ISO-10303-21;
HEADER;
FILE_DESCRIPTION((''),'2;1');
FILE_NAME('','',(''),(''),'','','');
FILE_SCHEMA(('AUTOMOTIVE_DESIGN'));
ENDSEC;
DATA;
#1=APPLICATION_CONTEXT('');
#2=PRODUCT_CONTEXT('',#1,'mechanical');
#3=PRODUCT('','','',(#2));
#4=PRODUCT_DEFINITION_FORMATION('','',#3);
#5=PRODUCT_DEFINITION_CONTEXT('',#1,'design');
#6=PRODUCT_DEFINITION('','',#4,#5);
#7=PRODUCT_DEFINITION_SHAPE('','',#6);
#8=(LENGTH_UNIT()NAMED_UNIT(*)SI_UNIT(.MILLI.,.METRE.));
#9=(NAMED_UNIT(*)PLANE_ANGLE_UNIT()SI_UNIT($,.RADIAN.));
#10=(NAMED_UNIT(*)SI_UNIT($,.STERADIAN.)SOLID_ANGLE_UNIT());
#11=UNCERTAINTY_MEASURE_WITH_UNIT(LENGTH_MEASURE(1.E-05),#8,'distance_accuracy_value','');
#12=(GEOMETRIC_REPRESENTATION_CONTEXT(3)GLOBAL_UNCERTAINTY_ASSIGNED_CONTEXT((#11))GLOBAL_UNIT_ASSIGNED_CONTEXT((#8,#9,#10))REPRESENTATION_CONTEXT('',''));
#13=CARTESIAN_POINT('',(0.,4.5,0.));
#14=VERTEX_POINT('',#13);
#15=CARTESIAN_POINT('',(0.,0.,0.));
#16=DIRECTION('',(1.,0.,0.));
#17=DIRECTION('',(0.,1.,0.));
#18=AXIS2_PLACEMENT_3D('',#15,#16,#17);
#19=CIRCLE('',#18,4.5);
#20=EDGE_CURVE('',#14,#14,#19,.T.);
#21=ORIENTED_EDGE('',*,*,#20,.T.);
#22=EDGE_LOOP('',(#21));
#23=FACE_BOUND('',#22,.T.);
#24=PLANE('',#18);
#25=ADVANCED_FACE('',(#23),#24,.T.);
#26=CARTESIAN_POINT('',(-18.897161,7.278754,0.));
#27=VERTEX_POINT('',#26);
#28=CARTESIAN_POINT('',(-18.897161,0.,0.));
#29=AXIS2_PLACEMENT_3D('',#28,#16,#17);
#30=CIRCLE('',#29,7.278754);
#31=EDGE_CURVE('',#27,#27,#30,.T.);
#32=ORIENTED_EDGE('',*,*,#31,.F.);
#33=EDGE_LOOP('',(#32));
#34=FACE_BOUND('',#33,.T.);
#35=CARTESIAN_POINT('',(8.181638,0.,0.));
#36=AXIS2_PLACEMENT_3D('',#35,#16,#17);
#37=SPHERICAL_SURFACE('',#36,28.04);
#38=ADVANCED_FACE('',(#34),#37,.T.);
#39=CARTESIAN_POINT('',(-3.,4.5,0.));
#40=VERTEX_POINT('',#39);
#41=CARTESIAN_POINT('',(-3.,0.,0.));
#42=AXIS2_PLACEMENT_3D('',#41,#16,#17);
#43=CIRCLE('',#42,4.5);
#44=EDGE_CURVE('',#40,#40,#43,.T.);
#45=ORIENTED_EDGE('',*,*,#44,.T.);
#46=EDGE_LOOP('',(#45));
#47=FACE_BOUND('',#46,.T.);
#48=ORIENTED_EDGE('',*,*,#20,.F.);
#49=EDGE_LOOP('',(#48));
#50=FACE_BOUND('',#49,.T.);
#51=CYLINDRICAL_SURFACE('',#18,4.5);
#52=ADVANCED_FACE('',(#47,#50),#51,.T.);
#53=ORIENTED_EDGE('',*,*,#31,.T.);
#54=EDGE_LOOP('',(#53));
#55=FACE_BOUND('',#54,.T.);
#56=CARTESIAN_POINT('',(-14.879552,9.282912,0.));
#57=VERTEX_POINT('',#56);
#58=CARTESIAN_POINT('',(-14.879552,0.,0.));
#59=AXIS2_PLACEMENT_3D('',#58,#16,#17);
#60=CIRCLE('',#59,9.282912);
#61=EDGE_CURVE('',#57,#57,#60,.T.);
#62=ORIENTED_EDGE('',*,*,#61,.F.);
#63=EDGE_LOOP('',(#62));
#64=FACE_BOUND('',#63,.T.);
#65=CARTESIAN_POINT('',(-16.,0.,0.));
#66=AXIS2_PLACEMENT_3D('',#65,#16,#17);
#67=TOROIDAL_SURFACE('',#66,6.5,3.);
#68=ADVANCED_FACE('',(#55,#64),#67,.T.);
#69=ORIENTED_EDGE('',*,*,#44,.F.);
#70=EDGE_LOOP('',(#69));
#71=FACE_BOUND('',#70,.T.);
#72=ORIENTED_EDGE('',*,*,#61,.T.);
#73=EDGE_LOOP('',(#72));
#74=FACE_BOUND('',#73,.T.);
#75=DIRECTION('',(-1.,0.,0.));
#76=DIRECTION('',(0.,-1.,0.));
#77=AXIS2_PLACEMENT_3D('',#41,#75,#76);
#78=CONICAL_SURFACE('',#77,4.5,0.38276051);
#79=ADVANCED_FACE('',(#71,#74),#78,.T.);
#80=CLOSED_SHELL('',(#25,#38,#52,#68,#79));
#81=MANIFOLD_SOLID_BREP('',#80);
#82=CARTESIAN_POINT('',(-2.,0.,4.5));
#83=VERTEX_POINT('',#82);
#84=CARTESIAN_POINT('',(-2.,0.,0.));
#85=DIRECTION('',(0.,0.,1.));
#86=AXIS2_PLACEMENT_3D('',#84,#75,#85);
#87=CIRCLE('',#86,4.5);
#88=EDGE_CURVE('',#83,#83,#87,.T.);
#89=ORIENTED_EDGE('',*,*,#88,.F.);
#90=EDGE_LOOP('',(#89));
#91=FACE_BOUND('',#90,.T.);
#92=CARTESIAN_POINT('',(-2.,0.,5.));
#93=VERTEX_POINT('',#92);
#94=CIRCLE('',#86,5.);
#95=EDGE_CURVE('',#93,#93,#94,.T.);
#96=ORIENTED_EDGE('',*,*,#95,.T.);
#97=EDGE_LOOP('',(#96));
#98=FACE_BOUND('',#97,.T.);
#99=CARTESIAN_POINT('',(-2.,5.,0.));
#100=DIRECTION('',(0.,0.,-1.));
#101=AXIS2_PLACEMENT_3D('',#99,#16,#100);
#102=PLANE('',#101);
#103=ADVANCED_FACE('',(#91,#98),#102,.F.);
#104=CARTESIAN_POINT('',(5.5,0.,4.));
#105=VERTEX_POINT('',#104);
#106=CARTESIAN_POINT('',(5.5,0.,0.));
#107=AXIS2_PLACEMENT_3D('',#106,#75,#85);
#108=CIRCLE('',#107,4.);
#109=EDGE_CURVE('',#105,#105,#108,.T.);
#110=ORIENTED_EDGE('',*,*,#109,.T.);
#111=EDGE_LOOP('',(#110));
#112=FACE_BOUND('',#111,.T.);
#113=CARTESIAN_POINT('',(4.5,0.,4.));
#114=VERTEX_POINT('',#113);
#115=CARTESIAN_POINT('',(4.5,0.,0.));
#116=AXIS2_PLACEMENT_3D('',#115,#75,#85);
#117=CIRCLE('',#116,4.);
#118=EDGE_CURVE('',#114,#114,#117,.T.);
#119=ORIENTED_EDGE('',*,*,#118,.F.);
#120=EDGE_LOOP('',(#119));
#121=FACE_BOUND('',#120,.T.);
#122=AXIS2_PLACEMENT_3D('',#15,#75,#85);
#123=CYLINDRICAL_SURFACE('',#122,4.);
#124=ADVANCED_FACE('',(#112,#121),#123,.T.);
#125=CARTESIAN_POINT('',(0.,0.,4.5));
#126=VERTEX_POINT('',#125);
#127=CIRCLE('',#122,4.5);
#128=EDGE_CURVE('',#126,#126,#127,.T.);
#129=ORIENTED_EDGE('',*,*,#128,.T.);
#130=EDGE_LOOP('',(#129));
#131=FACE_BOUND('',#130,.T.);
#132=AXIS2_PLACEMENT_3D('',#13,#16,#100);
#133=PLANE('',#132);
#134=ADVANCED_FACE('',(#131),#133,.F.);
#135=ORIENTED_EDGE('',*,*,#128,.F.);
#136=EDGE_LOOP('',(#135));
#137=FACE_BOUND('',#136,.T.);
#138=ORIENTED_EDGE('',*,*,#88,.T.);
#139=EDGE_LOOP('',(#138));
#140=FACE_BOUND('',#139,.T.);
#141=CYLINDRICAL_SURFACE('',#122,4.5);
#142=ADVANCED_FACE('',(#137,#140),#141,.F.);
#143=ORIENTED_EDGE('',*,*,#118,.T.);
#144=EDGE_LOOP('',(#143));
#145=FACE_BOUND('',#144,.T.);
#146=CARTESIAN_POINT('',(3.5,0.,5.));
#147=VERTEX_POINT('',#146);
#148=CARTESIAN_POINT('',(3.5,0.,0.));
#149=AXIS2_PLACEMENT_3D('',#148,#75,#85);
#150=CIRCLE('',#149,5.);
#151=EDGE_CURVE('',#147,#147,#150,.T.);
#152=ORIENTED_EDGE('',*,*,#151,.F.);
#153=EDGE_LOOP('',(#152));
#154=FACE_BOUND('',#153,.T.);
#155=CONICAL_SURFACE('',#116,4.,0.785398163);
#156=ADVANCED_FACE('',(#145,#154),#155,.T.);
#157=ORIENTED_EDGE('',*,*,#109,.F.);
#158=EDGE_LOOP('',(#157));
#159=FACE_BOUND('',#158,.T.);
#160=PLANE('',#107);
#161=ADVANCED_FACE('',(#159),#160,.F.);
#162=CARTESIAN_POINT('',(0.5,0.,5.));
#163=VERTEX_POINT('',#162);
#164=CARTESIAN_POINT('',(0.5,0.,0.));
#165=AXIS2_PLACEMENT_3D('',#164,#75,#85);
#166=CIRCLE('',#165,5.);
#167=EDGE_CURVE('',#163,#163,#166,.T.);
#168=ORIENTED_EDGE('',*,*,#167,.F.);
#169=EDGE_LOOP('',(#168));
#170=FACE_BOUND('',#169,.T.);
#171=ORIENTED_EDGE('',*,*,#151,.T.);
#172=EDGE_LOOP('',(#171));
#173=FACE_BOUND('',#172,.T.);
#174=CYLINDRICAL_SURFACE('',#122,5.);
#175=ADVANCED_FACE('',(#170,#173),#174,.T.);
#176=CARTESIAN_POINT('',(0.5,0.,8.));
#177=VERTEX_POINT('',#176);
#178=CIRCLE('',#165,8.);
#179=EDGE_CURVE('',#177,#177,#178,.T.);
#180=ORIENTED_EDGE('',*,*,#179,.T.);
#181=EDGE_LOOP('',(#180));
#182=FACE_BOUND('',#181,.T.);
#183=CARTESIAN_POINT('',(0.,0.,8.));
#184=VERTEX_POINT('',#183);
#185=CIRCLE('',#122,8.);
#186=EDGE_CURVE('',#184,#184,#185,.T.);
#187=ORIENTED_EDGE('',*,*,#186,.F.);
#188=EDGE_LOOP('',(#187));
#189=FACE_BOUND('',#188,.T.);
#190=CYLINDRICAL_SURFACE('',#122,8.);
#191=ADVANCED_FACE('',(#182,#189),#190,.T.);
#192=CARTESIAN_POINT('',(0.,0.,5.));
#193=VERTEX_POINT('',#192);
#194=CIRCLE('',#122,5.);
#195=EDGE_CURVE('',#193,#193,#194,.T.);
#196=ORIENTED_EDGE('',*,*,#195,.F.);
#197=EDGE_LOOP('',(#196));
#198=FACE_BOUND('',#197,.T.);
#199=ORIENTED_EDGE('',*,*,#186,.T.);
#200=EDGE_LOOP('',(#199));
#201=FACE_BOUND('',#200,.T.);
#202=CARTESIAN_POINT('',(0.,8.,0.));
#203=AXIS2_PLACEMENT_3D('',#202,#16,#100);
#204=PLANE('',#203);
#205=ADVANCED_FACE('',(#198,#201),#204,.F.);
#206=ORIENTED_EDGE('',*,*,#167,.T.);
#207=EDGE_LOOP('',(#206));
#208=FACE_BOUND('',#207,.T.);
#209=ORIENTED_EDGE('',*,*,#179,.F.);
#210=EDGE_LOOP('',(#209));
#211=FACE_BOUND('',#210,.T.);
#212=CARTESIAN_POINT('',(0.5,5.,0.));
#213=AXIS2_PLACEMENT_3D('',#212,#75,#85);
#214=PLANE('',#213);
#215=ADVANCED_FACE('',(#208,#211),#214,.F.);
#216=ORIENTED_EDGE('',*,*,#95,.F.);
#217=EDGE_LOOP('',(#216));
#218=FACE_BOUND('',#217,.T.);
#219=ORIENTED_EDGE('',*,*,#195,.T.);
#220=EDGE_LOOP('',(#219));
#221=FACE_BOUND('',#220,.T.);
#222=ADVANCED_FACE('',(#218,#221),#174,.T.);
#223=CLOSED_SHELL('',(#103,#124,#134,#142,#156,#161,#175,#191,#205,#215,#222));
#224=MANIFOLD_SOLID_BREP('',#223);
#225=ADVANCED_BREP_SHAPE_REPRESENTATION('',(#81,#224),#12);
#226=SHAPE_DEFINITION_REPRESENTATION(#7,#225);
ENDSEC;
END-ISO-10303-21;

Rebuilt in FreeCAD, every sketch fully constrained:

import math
import FreeCAD as App
import Part
import Sketcher
from FreeCAD import Vector
Q = App.Units.Quantity

doc = App.newDocument("Part")
body = doc.addObject("PartDesign::Body", "Body")

# Sketch on XY plane
sketch1 = body.newObject("Sketcher::SketchObject", "Sketch")
sketch1.AttachmentSupport = (doc.getObject("XY_Plane"), [""])
sketch1.MapMode = "FlatFace"
sketch1.addGeometry(Part.LineSegment(Vector(0, 4.5, 0), Vector(0, 0, 0)), False)
sketch1.addGeometry(Part.LineSegment(Vector(0, 0, 0), Vector(5.5, 0, 0)), False)
sketch1.addGeometry(Part.LineSegment(Vector(5.5, 0, 0), Vector(5.5, 4, 0)), False)
sketch1.addGeometry(Part.LineSegment(Vector(5.5, 4, 0), Vector(4.5, 4, 0)), False)
sketch1.addGeometry(Part.LineSegment(Vector(4.5, 4, 0), Vector(3.5, 5, 0)), False)
sketch1.addGeometry(Part.LineSegment(Vector(3.5, 5, 0), Vector(0.5, 5, 0)), False)
sketch1.addGeometry(Part.LineSegment(Vector(0.5, 5, 0), Vector(0.5, 8, 0)), False)
sketch1.addGeometry(Part.LineSegment(Vector(0.5, 8, 0), Vector(0, 8, 0)), False)
sketch1.addGeometry(Part.LineSegment(Vector(0, 8, 0), Vector(0, 5, 0)), False)
sketch1.addGeometry(Part.LineSegment(Vector(0, 5, 0), Vector(-2, 5, 0)), False)
sketch1.addGeometry(Part.LineSegment(Vector(-2, 5, 0), Vector(-2, 4.5, 0)), False)
sketch1.addGeometry(Part.LineSegment(Vector(-2, 4.5, 0), Vector(0, 4.5, 0)), False)
sketch1.addConstraint(Sketcher.Constraint("Coincident", 0, 2, 1, 1))
sketch1.addConstraint(Sketcher.Constraint("Coincident", 1, 2, 2, 1))
sketch1.addConstraint(Sketcher.Constraint("Coincident", 2, 2, 3, 1))
sketch1.addConstraint(Sketcher.Constraint("Coincident", 3, 2, 4, 1))
sketch1.addConstraint(Sketcher.Constraint("Coincident", 4, 2, 5, 1))
sketch1.addConstraint(Sketcher.Constraint("Coincident", 5, 2, 6, 1))
sketch1.addConstraint(Sketcher.Constraint("Coincident", 6, 2, 7, 1))
sketch1.addConstraint(Sketcher.Constraint("Coincident", 7, 2, 8, 1))
sketch1.addConstraint(Sketcher.Constraint("Coincident", 8, 2, 9, 1))
sketch1.addConstraint(Sketcher.Constraint("Coincident", 9, 2, 10, 1))
sketch1.addConstraint(Sketcher.Constraint("Coincident", 10, 2, 11, 1))
sketch1.addConstraint(Sketcher.Constraint("Coincident", 11, 2, 0, 1))
sketch1.addConstraint(Sketcher.Constraint("Vertical", 0))
sketch1.addConstraint(Sketcher.Constraint("Horizontal", 1))
sketch1.addConstraint(Sketcher.Constraint("Vertical", 2))
sketch1.addConstraint(Sketcher.Constraint("Horizontal", 3))
sketch1.addConstraint(Sketcher.Constraint("Horizontal", 5))
sketch1.addConstraint(Sketcher.Constraint("Vertical", 6))
sketch1.addConstraint(Sketcher.Constraint("Horizontal", 7))
sketch1.addConstraint(Sketcher.Constraint("Vertical", 8))
sketch1.addConstraint(Sketcher.Constraint("Horizontal", 9))
sketch1.addConstraint(Sketcher.Constraint("Vertical", 10))
sketch1.addConstraint(Sketcher.Constraint("Horizontal", 11))
sketch1.addConstraint(Sketcher.Constraint("Coincident", 0, 2, -1, 1))
sketch1.addConstraint(Sketcher.Constraint("PointOnObject", 7, 2, -2))
sketch1.addConstraint(Sketcher.Constraint("Horizontal", 5, 2, 8, 2))
sketch1.addConstraint(Sketcher.Constraint("Equal", 5, 6))
sketch1.addConstraint(Sketcher.Constraint("Equal", 7, 10))
sketch1.addConstraint(Sketcher.Constraint("DistanceX", 3, 2, 3, 1, 1.0))
sketch1.addConstraint(Sketcher.Constraint("DistanceX", 5, 2, 5, 1, 3.0))
sketch1.addConstraint(Sketcher.Constraint("DistanceX", 9, 2, 9, 1, 2.0))
sketch1.addConstraint(Sketcher.Constraint("DistanceY", 2, 1, 2, 2, 4.0))
sketch1.addConstraint(Sketcher.Constraint("Angle", 4, Q("135 deg")))
sketch1.addConstraint(Sketcher.Constraint("DistanceX", 1, 1, 1, 2, 5.5))
sketch1.addConstraint(Sketcher.Constraint("DistanceX", 7, 2, 7, 1, 0.5))
revolution = body.newObject("PartDesign::Revolution", "Revolution")
revolution.Profile = sketch1
revolution.ReferenceAxis = (sketch1, ["H_Axis"])
revolution.Angle = 360
body2 = doc.addObject("PartDesign::Body", "Body001")

# Sketch on XY plane
sketch2 = body2.newObject("Sketcher::SketchObject", "Sketch001")
sketch2.AttachmentSupport = (doc.getObject("XY_Plane001"), [""])
sketch2.MapMode = "FlatFace"
sketch2.addGeometry(Part.LineSegment(Vector(0, 0, 0), Vector(0, 4.5, 0)), False)
sketch2.addGeometry(Part.LineSegment(Vector(0, 4.5, 0), Vector(-3, 4.5, 0)), False)
sketch2.addGeometry(Part.LineSegment(Vector(-3, 4.5, 0), Vector(-14.879552, 9.282912, 0)), False)
sketch2.addGeometry(Part.ArcOfCircle(Part.Circle(Vector(-16, 6.5, 0), Vector(0, 0, 1), 3), math.radians(68.069438), math.radians(164.954581)), False)
sketch2.addGeometry(Part.ArcOfCircle(Part.Circle(Vector(8.181638, 0, 0), Vector(0, 0, 1), 28.04), math.radians(164.954581), math.radians(180)), False)
sketch2.addGeometry(Part.LineSegment(Vector(-19.858362, 0, 0), Vector(0, 0, 0)), False)
sketch2.addConstraint(Sketcher.Constraint("Coincident", 0, 2, 1, 1))
sketch2.addConstraint(Sketcher.Constraint("Coincident", 1, 2, 2, 1))
sketch2.addConstraint(Sketcher.Constraint("Tangent", 2, 2, 3, 1))
sketch2.addConstraint(Sketcher.Constraint("Tangent", 3, 2, 4, 1))
sketch2.addConstraint(Sketcher.Constraint("Coincident", 4, 2, 5, 1))
sketch2.addConstraint(Sketcher.Constraint("Coincident", 5, 2, 0, 1))
sketch2.addConstraint(Sketcher.Constraint("Vertical", 0))
sketch2.addConstraint(Sketcher.Constraint("Horizontal", 1))
sketch2.addConstraint(Sketcher.Constraint("Horizontal", 5))
sketch2.addConstraint(Sketcher.Constraint("Coincident", 5, 2, -1, 1))
sketch2.addConstraint(Sketcher.Constraint("PointOnObject", 4, 3, -1))
sketch2.addConstraint(Sketcher.Constraint("Radius", 3, 3.0))
sketch2.addConstraint(Sketcher.Constraint("DistanceX", 1, 2, 1, 1, 3.0))
sketch2.addConstraint(Sketcher.Constraint("Radius", 4, 28.04))
sketch2.addConstraint(Sketcher.Constraint("DistanceY", 0, 1, 0, 2, 4.5))
sketch2.addConstraint(Sketcher.Constraint("DistanceX", 3, 3, -1, 1, 16.0))
sketch2.addConstraint(Sketcher.Constraint("DistanceY", 0, 2, 3, 3, 2.0))
revolution2 = body2.newObject("PartDesign::Revolution", "Revolution001")
revolution2.Profile = sketch2
revolution2.ReferenceAxis = (sketch2, ["H_Axis"])
revolution2.Angle = 360

doc.recompute()
